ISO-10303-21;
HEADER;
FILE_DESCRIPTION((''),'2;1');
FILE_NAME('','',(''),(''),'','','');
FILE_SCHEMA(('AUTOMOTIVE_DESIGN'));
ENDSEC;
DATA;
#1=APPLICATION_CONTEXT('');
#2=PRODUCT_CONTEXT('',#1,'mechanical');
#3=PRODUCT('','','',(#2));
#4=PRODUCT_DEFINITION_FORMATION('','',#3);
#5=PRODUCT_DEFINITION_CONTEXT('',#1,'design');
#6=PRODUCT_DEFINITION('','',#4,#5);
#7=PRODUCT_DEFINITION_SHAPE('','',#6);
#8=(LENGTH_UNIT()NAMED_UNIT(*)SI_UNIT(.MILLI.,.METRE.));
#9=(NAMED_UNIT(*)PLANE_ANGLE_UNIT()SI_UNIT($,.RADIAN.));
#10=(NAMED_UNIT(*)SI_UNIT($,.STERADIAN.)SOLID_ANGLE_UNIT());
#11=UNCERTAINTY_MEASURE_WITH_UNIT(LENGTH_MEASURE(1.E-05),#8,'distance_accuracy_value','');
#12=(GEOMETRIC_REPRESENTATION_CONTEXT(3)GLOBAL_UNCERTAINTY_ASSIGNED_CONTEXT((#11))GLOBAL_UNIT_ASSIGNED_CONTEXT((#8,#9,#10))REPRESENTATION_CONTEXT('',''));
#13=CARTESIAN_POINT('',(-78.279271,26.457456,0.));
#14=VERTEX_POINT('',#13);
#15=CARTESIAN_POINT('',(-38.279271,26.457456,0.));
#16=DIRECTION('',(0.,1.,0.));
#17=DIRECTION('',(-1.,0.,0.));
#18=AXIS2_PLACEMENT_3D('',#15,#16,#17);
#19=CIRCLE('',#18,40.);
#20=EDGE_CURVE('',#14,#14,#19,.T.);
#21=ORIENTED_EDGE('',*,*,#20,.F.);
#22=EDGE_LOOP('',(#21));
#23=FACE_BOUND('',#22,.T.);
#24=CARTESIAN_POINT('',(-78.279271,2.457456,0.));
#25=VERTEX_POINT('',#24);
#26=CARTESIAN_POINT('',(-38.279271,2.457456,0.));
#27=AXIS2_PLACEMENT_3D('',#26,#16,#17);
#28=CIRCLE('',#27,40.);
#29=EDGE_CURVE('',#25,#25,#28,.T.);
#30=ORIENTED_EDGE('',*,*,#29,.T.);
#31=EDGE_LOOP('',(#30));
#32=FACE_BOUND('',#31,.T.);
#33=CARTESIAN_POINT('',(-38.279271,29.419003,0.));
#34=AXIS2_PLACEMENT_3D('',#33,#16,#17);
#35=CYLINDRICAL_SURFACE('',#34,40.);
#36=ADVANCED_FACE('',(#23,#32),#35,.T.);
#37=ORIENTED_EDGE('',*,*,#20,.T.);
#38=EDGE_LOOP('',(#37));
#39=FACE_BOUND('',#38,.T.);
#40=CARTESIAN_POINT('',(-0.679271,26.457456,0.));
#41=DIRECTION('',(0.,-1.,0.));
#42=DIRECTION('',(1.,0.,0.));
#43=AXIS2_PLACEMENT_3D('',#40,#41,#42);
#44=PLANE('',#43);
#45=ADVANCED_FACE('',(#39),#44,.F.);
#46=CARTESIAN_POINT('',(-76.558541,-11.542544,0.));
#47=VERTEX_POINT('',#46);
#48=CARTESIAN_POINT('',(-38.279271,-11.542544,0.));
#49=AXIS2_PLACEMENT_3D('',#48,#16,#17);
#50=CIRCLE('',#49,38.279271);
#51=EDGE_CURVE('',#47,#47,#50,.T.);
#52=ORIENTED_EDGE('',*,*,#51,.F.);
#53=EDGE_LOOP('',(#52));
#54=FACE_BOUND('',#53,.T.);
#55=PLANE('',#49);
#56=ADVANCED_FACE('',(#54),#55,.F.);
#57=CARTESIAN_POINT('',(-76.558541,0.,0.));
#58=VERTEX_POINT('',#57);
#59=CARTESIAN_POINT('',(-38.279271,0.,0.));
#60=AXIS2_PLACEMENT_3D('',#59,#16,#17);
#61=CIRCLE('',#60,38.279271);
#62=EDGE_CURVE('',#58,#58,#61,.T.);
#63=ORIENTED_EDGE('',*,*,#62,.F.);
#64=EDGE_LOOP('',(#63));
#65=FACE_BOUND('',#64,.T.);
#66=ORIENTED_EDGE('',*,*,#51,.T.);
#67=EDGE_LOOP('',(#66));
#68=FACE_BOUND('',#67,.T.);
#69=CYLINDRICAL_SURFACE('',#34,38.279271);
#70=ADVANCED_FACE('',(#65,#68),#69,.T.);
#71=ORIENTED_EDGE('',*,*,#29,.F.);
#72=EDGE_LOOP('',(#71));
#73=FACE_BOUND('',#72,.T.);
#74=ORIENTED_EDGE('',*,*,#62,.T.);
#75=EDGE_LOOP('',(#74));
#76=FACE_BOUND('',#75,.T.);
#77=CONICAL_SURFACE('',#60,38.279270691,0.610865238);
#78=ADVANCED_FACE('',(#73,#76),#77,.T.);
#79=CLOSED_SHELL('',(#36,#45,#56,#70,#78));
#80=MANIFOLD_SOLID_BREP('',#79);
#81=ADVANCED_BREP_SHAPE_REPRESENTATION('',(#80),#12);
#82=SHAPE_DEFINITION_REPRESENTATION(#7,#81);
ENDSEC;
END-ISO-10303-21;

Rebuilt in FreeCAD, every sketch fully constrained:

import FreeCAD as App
import Part
import Sketcher

V = App.Vector
Q = App.Units.Quantity

doc = App.newDocument("Part")
body = doc.addObject("PartDesign::Body", "Body")

# Sketch on XY plane
sketch1 = body.newObject("Sketcher::SketchObject", "Sketch")
sketch1.AttachmentSupport = (doc.getObject("XY_Plane"), [""])
sketch1.MapMode = "FlatFace"
sketch1.addGeometry([
    Part.LineSegment(V(0, 0, 0), V(1.7, 2.5, 0)),  # 0
    Part.LineSegment(V(1.7, 2.5, 0), V(1.7, 26.5, 0)),  # 1
    Part.LineSegment(V(1.7, 26.5, 0), V(-38.3, 26.5, 0)),  # 2
    Part.LineSegment(V(-38.3, 26.5, 0), V(-38.3, -11.5, 0)),  # 3
    Part.LineSegment(V(-38.3, -11.5, 0), V(0, -11.5, 0)),  # 4
    Part.LineSegment(V(0, -11.5, 0), V(0, 0, 0)),  # 5
], False)
sketch1.addGeometry(Part.LineSegment(V(-38.3, 26.5, 0), V(-38.3, -11.5, 0)), True)  # axis
sketch1.addConstraint([
    Sketcher.Constraint("Coincident", 0, 2, 1, 1),
    Sketcher.Constraint("Coincident", 1, 2, 2, 1),
    Sketcher.Constraint("Coincident", 2, 2, 3, 1),
    Sketcher.Constraint("Coincident", 3, 2, 4, 1),
    Sketcher.Constraint("Coincident", 4, 2, 5, 1),
    Sketcher.Constraint("Coincident", 5, 2, 0, 1),
    Sketcher.Constraint("Vertical", 1),
    Sketcher.Constraint("Horizontal", 2),
    Sketcher.Constraint("Vertical", 3),
    Sketcher.Constraint("Horizontal", 4),
    Sketcher.Constraint("Vertical", 5),
    Sketcher.Constraint("Vertical", 6),
    Sketcher.Constraint("Coincident", 5, 2, -1, 1),
    Sketcher.Constraint("Coincident", 6, 1, 2, 2),
    Sketcher.Constraint("Horizontal", 4, 2, 6, 2),
    Sketcher.Constraint("DistanceX", 2, 2, 2, 1, 40.0),
    Sketcher.Constraint("DistanceY", 1, 1, 1, 2, 24.0),
    Sketcher.Constraint("DistanceY", 3, 2, 3, 1, 38.0),
    Sketcher.Constraint("Angle", 0, Q("55 deg")),
    Sketcher.Constraint("Distance", 0, 3.0),
])
revolution = body.newObject("PartDesign::Revolution", "Revolution")
revolution.Profile = sketch1
revolution.ReferenceAxis = (sketch1, ["Axis0"])
revolution.Angle = 360

doc.recompute()
